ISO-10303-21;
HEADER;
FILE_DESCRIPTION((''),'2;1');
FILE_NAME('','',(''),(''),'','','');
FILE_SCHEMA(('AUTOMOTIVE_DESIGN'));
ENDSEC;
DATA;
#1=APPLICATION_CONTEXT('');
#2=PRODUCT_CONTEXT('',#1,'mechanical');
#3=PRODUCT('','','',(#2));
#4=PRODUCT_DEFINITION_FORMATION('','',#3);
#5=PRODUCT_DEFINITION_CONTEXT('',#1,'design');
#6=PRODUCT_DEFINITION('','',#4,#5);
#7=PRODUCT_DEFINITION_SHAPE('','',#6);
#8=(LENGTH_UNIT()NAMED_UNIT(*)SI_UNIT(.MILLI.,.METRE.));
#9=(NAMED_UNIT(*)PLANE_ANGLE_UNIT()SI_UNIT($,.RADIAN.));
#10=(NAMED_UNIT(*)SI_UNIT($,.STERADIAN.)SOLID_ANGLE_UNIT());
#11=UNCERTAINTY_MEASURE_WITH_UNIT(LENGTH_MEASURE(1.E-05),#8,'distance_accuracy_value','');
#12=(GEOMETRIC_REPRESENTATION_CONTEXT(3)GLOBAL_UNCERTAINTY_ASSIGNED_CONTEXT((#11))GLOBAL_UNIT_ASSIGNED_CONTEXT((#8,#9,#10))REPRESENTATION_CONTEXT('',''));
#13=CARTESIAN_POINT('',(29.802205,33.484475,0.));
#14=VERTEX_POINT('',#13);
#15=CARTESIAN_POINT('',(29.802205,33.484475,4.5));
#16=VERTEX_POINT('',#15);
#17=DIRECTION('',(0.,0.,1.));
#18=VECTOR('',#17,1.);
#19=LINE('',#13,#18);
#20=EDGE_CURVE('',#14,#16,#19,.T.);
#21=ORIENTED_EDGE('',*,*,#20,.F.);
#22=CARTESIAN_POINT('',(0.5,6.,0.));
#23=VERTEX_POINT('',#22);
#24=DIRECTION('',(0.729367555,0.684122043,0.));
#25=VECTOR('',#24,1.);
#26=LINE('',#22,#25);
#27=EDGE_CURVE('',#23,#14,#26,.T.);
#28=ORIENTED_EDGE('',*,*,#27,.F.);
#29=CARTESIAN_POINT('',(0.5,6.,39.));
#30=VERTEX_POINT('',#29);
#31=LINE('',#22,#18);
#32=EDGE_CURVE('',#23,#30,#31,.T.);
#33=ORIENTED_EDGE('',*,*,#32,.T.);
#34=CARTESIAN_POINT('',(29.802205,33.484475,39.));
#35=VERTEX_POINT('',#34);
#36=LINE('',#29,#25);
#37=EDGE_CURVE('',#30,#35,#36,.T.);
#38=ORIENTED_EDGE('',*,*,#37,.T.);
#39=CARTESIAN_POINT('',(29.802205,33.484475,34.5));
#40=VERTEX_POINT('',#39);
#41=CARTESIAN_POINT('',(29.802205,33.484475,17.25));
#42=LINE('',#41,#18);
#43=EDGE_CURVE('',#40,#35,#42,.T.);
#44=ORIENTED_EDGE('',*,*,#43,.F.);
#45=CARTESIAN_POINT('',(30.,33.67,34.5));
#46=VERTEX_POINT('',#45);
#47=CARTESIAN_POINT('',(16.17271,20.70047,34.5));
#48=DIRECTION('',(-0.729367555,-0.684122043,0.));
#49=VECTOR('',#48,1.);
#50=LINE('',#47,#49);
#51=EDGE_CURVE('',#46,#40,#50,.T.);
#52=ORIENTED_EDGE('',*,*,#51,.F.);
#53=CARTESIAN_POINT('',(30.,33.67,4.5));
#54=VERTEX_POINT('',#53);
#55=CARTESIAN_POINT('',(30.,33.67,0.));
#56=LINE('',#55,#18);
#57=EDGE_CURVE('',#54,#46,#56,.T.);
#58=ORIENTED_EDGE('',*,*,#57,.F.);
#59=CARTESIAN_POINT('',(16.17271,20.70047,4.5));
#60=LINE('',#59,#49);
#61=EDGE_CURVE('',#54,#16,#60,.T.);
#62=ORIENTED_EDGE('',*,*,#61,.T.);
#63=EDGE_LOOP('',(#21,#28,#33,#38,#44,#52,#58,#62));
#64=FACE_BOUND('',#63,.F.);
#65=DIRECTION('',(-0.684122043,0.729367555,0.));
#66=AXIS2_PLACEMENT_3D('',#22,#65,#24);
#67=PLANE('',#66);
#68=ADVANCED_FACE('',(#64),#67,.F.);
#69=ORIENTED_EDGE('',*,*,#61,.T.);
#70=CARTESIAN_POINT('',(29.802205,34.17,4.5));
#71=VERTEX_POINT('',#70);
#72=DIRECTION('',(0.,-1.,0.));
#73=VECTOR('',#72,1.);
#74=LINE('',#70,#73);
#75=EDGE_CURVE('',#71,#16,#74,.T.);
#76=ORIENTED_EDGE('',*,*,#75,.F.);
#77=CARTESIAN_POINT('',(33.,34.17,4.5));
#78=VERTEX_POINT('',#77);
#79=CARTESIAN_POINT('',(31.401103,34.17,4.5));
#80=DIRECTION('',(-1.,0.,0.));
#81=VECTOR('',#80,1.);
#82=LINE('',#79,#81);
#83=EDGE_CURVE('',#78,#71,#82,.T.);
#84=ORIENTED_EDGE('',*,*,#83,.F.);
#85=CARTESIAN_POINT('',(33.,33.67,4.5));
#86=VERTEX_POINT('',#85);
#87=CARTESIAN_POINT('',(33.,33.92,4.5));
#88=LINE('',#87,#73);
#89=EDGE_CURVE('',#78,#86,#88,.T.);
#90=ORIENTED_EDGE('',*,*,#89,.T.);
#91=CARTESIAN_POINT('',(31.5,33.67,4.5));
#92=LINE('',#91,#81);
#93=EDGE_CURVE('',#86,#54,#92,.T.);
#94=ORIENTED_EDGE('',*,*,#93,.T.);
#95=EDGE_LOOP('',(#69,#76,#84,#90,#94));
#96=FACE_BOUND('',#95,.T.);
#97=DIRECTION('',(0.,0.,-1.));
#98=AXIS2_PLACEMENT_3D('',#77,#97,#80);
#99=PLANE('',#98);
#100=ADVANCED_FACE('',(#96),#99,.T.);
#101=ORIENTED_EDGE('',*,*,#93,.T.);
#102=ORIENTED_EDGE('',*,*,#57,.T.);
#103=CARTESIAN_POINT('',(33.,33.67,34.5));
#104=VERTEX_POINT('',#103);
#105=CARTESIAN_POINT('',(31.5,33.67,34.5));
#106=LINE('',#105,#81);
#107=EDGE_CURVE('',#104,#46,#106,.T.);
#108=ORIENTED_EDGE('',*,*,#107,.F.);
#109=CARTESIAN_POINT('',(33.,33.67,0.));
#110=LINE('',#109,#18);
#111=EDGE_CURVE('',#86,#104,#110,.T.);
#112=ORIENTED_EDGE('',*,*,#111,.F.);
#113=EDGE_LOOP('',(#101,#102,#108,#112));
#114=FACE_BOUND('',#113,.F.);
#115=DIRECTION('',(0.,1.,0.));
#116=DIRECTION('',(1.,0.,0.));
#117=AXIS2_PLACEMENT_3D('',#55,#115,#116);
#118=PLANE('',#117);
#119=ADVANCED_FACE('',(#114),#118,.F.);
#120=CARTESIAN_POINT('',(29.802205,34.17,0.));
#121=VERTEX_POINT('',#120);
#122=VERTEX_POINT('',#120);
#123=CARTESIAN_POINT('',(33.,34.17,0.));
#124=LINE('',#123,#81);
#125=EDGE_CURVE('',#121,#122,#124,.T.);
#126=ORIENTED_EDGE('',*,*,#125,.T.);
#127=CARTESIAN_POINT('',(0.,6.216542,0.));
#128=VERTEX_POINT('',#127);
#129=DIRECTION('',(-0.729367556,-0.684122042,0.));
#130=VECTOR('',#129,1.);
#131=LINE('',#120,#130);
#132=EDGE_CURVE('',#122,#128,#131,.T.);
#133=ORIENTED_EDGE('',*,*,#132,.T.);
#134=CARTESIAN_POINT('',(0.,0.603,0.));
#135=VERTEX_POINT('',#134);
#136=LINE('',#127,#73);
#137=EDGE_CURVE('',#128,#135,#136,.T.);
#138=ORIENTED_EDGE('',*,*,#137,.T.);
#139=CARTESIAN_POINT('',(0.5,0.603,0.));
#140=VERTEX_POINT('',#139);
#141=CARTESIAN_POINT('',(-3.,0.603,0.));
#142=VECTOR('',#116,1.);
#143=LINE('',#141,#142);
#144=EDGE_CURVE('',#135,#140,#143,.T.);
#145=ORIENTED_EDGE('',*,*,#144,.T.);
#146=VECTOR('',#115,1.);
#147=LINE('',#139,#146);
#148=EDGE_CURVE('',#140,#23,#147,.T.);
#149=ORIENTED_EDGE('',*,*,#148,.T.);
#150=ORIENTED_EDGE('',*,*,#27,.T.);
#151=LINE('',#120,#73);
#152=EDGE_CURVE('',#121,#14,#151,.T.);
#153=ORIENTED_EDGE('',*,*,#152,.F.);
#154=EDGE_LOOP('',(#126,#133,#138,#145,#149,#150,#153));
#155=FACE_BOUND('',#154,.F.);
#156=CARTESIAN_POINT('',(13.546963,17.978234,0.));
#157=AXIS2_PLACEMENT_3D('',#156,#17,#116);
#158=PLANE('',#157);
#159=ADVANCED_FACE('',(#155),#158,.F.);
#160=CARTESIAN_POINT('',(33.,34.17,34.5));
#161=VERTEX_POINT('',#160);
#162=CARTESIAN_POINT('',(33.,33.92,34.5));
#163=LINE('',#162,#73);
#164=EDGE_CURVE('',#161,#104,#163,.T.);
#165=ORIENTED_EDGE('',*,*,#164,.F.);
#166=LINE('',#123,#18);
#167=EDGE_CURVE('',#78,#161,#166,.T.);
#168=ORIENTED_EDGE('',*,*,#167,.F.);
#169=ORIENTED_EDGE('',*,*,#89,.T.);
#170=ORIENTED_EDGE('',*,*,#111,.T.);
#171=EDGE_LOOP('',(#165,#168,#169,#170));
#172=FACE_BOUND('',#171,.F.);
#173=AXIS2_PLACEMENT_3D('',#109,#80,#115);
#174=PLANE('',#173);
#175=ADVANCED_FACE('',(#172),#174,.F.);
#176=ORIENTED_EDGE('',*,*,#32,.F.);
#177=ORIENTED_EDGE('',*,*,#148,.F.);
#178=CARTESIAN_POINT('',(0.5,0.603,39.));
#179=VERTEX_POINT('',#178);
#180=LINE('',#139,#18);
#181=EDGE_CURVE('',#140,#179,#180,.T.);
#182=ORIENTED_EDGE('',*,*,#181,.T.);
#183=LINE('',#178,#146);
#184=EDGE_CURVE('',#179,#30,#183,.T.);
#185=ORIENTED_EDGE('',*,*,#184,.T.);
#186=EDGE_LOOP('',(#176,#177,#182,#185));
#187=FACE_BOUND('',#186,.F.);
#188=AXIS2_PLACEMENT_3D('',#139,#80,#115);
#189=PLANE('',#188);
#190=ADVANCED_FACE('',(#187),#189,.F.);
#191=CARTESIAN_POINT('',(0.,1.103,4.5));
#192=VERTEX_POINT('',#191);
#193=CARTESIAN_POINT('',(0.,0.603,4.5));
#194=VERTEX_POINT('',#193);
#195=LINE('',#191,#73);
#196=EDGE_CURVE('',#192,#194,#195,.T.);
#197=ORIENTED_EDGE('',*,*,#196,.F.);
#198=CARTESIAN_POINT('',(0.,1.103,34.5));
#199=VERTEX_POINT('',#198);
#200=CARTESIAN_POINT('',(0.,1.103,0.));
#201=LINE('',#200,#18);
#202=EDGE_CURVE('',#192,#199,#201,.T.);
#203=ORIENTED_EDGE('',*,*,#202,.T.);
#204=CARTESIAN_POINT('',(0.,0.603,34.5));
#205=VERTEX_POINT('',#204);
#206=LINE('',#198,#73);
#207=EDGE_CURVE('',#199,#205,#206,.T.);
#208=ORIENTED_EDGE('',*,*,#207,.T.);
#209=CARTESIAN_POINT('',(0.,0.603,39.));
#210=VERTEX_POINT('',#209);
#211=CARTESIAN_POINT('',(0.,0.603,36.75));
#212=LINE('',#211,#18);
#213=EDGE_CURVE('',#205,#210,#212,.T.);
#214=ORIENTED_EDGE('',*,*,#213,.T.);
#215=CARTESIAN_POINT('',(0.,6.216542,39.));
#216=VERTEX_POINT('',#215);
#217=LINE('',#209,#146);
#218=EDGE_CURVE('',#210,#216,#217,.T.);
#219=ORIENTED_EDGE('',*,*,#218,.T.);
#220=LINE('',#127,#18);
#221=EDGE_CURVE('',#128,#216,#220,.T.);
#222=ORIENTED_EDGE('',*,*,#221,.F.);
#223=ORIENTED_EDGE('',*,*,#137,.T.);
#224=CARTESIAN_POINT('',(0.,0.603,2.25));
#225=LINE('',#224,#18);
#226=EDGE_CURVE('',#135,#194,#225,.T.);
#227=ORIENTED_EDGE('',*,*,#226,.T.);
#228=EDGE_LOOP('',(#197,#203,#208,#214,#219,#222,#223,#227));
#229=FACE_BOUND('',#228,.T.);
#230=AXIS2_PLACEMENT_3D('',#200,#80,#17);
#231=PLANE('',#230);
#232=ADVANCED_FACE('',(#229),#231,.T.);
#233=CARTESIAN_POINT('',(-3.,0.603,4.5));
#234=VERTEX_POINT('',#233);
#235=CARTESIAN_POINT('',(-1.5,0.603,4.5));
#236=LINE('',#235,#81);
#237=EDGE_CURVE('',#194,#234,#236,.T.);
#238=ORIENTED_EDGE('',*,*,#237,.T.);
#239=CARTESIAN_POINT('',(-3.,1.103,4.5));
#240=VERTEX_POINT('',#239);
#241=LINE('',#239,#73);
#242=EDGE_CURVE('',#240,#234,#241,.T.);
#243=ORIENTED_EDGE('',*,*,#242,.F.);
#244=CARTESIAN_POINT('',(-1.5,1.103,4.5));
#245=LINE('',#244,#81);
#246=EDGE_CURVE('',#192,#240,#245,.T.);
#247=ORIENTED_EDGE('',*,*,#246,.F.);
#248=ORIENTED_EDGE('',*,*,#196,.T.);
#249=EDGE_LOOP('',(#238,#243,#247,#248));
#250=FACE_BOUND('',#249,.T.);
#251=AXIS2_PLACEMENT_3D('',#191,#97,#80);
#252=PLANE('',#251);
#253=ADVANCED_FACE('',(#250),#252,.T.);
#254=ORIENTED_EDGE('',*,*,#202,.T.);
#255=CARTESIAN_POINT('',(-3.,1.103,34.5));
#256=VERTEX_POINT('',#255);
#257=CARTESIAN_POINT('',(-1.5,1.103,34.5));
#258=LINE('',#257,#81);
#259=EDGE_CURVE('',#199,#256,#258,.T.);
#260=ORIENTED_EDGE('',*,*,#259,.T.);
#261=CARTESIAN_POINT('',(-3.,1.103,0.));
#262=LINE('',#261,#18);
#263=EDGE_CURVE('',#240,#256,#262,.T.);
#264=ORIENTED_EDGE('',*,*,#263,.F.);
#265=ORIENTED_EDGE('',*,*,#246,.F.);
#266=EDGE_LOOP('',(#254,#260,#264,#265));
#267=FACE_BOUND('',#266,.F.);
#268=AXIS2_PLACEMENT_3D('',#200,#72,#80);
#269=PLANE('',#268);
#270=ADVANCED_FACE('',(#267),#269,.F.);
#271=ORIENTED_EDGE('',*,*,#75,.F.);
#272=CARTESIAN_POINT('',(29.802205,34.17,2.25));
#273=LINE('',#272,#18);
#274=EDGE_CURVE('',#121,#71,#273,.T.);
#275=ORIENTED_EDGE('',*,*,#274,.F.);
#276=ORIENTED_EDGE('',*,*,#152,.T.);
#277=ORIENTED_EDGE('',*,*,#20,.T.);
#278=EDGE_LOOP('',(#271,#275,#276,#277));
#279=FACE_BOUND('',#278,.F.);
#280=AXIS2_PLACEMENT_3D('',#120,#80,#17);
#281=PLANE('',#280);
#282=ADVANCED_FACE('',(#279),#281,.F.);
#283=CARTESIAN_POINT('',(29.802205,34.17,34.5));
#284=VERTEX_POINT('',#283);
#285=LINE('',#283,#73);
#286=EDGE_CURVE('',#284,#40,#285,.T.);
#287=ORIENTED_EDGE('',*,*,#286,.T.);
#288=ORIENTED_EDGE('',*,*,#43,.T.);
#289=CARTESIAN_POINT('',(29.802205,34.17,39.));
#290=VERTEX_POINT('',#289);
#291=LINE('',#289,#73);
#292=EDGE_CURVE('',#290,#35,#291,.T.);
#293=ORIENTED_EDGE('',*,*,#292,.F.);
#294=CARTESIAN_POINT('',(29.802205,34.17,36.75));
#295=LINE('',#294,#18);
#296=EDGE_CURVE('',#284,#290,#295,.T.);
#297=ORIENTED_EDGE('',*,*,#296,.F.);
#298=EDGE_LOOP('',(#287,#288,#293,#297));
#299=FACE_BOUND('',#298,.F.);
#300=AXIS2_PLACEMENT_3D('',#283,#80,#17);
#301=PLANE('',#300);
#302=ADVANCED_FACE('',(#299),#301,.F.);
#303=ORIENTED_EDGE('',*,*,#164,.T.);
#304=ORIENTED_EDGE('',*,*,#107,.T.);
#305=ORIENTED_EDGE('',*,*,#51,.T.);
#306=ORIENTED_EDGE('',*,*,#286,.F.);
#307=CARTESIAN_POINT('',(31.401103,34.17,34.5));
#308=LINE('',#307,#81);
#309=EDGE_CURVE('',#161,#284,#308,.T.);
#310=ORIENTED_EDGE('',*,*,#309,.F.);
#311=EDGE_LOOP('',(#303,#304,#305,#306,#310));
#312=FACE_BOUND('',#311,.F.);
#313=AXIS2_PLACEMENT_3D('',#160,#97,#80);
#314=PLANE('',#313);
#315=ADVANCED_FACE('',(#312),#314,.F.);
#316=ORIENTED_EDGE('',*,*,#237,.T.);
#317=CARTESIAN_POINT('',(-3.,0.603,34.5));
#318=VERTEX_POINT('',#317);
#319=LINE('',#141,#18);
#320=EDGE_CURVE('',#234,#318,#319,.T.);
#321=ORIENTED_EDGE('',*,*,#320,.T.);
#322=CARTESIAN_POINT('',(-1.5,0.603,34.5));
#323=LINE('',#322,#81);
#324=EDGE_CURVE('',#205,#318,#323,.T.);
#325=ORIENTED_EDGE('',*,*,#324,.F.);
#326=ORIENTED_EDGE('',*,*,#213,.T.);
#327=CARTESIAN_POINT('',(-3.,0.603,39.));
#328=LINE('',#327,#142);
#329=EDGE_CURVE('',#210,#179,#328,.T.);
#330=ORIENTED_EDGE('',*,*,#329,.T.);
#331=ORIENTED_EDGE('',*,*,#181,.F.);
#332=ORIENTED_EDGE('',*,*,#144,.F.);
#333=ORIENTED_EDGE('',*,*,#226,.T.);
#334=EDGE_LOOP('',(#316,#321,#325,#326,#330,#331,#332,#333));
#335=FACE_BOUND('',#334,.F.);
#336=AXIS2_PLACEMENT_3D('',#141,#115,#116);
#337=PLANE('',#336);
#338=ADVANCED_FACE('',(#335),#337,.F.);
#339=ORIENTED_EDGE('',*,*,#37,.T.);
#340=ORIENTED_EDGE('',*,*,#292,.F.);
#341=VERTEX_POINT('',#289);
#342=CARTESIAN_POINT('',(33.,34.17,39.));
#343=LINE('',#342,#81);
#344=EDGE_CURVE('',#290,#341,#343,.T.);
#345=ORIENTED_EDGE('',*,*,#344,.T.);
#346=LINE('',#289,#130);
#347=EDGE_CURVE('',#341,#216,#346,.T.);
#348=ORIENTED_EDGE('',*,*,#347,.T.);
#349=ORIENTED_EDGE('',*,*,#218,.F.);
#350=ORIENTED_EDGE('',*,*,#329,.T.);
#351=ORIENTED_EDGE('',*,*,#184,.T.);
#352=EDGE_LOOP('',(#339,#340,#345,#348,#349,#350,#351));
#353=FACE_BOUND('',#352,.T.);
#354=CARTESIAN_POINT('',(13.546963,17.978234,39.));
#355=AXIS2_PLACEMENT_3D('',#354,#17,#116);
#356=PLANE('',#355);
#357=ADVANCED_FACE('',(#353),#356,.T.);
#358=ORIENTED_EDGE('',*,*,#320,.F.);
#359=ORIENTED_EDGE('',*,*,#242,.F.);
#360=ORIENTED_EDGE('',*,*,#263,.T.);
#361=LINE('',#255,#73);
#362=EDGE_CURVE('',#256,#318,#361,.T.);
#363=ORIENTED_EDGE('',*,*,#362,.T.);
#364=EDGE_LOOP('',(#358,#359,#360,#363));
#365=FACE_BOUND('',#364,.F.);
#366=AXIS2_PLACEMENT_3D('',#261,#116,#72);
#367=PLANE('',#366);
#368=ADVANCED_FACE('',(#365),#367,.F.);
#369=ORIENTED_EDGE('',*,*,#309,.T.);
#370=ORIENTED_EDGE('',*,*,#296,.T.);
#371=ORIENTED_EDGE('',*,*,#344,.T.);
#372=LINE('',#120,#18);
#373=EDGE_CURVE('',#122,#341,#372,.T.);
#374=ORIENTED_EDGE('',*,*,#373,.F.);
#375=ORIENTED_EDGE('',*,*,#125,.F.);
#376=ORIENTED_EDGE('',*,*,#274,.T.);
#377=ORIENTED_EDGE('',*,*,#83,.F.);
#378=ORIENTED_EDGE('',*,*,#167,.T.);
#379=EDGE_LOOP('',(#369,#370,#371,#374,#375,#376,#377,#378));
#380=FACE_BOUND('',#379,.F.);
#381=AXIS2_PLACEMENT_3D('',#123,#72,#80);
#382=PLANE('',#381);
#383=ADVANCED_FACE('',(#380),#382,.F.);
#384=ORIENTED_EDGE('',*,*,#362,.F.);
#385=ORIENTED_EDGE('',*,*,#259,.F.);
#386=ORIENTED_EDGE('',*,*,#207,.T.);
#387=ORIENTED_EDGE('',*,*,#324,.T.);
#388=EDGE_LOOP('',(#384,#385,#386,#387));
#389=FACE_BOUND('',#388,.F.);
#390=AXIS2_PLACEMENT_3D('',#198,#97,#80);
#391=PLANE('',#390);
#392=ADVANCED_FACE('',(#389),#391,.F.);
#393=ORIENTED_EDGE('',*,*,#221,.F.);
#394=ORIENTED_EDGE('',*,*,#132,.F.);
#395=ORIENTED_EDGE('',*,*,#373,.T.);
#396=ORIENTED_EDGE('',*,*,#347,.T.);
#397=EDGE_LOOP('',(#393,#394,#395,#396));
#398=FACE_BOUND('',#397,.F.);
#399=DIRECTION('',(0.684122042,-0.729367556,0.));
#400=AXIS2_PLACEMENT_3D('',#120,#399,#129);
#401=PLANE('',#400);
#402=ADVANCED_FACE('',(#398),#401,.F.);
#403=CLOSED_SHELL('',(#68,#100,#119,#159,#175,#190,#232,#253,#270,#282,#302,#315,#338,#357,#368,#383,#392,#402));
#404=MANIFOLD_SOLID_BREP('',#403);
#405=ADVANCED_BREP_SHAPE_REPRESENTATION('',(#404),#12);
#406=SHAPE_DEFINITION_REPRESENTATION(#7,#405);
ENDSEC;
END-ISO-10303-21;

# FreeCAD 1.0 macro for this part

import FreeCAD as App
import Part
import Sketcher

V = App.Vector
Q = App.Units.Quantity


def add_polygon(sketch, points):
    """Adds a closed chain of lines whose ends are joined by coincident constraints."""
    first, n = sketch.GeometryCount, len(points)
    for a, b in zip(points, points[1:] + points[:1]):
        sketch.addGeometry(Part.LineSegment(App.Vector(*a, 0), App.Vector(*b, 0)), False)
    for i in range(n):
        sketch.addConstraint(Sketcher.Constraint("Coincident", first + i, 2, first + (i + 1) % n, 1))

doc = App.newDocument("Part")
body = doc.addObject("PartDesign::Body", "Body")

# Sketch on XY plane
sketch1 = doc.addObject("Sketcher::SketchObject", "Sketch")
body.addObject(sketch1)
sketch1.AttachmentSupport = (doc.XY_Plane, [""])
sketch1.MapMode = "FlatFace"
add_polygon(sketch1, [(-3, 0.6), (0.5, 0.6), (0.5, 6), (30, 33.7), (33, 33.7), (33, 34.2), (29.8, 34.2), (0, 6.2), (0, 1.1), (-3, 1.1)])  # lines 0-9
sketch1.addConstraint([
    Sketcher.Constraint("Horizontal", 0),
    Sketcher.Constraint("Vertical", 1),
    Sketcher.Constraint("Horizontal", 3),
    Sketcher.Constraint("Vertical", 4),
    Sketcher.Constraint("Horizontal", 5),
    Sketcher.Constraint("Vertical", 7),
    Sketcher.Constraint("Horizontal", 8),
    Sketcher.Constraint("Vertical", 9),
    Sketcher.Constraint("PointOnObject", 6, 2, -2),
    Sketcher.Constraint("Parallel", 2, 6),
    Sketcher.Constraint("Equal", 3, 8),
    Sketcher.Constraint("Equal", 4, 9),
    Sketcher.Constraint("DistanceX", 3, 1, 3, 2, Q("3 mm")),
    Sketcher.Constraint("DistanceX", 0, 1, 0, 2, Q("3.5 mm")),
    Sketcher.Constraint("DistanceY", 4, 1, 4, 2, Q("0.5 mm")),
    Sketcher.Constraint("DistanceY", -1, 1, 1, 2, Q("6 mm")),
    Sketcher.Constraint("DistanceX", -1, 1, 2, 2, Q("30 mm")),
    Sketcher.Constraint("DistanceY", 1, 1, 1, 2, Q("5.397 mm")),
    Sketcher.Constraint("DistanceY", -1, 1, 2, 2, Q("33.67 mm")),
    Sketcher.Constraint("DistanceY", 7, 2, 7, 1, Q("5.113542 mm")),
])
pad1 = doc.addObject("PartDesign::Pad", "Pad")
body.addObject(pad1)
pad1.Profile = sketch1
pad1.Length = 39

# Sketch on XZ plane
sketch2 = doc.addObject("Sketcher::SketchObject", "Sketch001")
body.addObject(sketch2)
sketch2.AttachmentSupport = (doc.XZ_Plane, [""])
sketch2.MapMode = "FlatFace"
sketch2.AttachmentOffset = App.Placement(V(0, 0, -1.103), App.Rotation())
add_polygon(sketch2, [(0, 4.5), (0, 0), (-3, 0), (-3, 4.5)])  # lines 0-3
add_polygon(sketch2, [(0, 39), (0, 34.5), (-3, 34.5), (-3, 39)])  # lines 4-7
sketch2.addConstraint([
    Sketcher.Constraint("Vertical", 0),
    Sketcher.Constraint("Horizontal", 1),
    Sketcher.Constraint("Vertical", 2),
    Sketcher.Constraint("Horizontal", 3),
    Sketcher.Constraint("Vertical", 4),
    Sketcher.Constraint("Horizontal", 5),
    Sketcher.Constraint("Vertical", 6),
    Sketcher.Constraint("Horizontal", 7),
    Sketcher.Constraint("Coincident", 0, 2, -1, 1),
    Sketcher.Constraint("PointOnObject", 4, 2, -2),
    Sketcher.Constraint("Vertical", 2, 2, 5, 2),
    Sketcher.Constraint("Equal", 2, 4),
    Sketcher.Constraint("DistanceX", 1, 2, 1, 1, Q("3 mm")),
    Sketcher.Constraint("DistanceY", 0, 2, 0, 1, Q("4.5 mm")),
    Sketcher.Constraint("DistanceY", -1, 1, 6, 2, Q("39 mm")),
])
pocket1 = doc.addObject("PartDesign::Pocket", "Pocket")
body.addObject(pocket1)
pocket1.Profile = sketch2
pocket1.Type = "ThroughAll"
pocket1.Reversed = True

# Sketch on XZ plane
sketch3 = doc.addObject("Sketcher::SketchObject", "Sketch002")
body.addObject(sketch3)
sketch3.AttachmentSupport = (doc.XZ_Plane, [""])
sketch3.MapMode = "FlatFace"
sketch3.AttachmentOffset = App.Placement(V(0, 0, -34.17), App.Rotation())
add_polygon(sketch3, [(33, 39), (33, 34.5), (29.8, 34.5), (29.8, 39)])  # lines 0-3
add_polygon(sketch3, [(33, 4.5), (33, 0), (29.8, 0), (29.8, 4.5)])  # lines 4-7
sketch3.addConstraint([
    Sketcher.Constraint("Vertical", 0),
    Sketcher.Constraint("Horizontal", 1),
    Sketcher.Constraint("Vertical", 2),
    Sketcher.Constraint("Horizontal", 3),
    Sketcher.Constraint("Vertical", 4),
    Sketcher.Constraint("Horizontal", 5),
    Sketcher.Constraint("Vertical", 6),
    Sketcher.Constraint("Horizontal", 7),
    Sketcher.Constraint("PointOnObject", 4, 2, -1),
    Sketcher.Constraint("Vertical", 3, 2, 4, 2),
    Sketcher.Constraint("Vertical", 2, 2, 5, 2),
    Sketcher.Constraint("Equal", 2, 4),
    Sketcher.Constraint("DistanceY", 0, 2, 0, 1, Q("4.5 mm")),
    Sketcher.Constraint("DistanceX", -1, 1, 0, 2, Q("33 mm")),
    Sketcher.Constraint("DistanceY", -1, 1, 2, 2, Q("39 mm")),
    Sketcher.Constraint("DistanceX", 1, 2, 1, 1, Q("3.197795 mm")),
])
pocket2 = doc.addObject("PartDesign::Pocket", "Pocket001")
body.addObject(pocket2)
pocket2.Profile = sketch3
pocket2.Length = 1
pocket2.Reversed = True

doc.recompute()
